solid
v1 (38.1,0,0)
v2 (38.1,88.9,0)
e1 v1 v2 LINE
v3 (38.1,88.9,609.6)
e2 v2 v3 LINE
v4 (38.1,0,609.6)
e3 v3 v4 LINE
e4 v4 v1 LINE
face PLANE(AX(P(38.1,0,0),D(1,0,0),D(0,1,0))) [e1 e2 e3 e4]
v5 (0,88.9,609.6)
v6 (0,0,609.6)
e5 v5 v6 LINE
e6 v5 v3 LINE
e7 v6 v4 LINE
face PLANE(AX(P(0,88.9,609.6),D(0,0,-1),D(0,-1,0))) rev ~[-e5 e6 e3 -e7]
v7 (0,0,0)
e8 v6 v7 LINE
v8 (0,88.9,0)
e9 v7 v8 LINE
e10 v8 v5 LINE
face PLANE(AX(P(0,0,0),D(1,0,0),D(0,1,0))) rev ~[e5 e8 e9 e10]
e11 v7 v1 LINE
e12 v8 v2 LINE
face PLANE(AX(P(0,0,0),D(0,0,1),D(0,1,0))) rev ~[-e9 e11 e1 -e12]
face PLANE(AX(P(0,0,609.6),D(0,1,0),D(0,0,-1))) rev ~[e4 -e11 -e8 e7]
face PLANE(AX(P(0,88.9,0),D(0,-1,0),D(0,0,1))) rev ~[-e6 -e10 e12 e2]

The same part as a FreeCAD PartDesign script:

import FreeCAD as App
import Part
import Sketcher
from FreeCAD import Vector
Q = App.Units.Quantity

doc = App.newDocument("Part")
body = doc.addObject("PartDesign::Body", "Body")

# Sketch on YZ plane
sketch1 = body.newObject("Sketcher::SketchObject", "Sketch")
sketch1.AttachmentSupport = (doc.getObject("YZ_Plane"), [""])
sketch1.MapMode = "FlatFace"
sketch1.addGeometry(Part.LineSegment(Vector(0, 609.6, 0), Vector(0, 0, 0)), False)
sketch1.addGeometry(Part.LineSegment(Vector(0, 0, 0), Vector(88.9, 0, 0)), False)
sketch1.addGeometry(Part.LineSegment(Vector(88.9, 0, 0), Vector(88.9, 609.6, 0)), False)
sketch1.addGeometry(Part.LineSegment(Vector(88.9, 609.6, 0), Vector(0, 609.6, 0)), False)
sketch1.addConstraint(Sketcher.Constraint("Coincident", 0, 2, 1, 1))
sketch1.addConstraint(Sketcher.Constraint("Coincident", 1, 2, 2, 1))
sketch1.addConstraint(Sketcher.Constraint("Coincident", 2, 2, 3, 1))
sketch1.addConstraint(Sketcher.Constraint("Coincident", 3, 2, 0, 1))
sketch1.addConstraint(Sketcher.Constraint("Vertical", 0))
sketch1.addConstraint(Sketcher.Constraint("Horizontal", 1))
sketch1.addConstraint(Sketcher.Constraint("Vertical", 2))
sketch1.addConstraint(Sketcher.Constraint("Horizontal", 3))
sketch1.addConstraint(Sketcher.Constraint("Coincident", 0, 2, -1, 1))
sketch1.addConstraint(Sketcher.Constraint("DistanceY", 0, 2, 0, 1, Q("24 in")))
sketch1.addConstraint(Sketcher.Constraint("DistanceX", 1, 1, 1, 2, Q("3.5 in")))
pad1 = body.newObject("PartDesign::Pad", "Pad")
pad1.Profile = sketch1
pad1.Length = Q("1.5 in")

doc.recompute()
